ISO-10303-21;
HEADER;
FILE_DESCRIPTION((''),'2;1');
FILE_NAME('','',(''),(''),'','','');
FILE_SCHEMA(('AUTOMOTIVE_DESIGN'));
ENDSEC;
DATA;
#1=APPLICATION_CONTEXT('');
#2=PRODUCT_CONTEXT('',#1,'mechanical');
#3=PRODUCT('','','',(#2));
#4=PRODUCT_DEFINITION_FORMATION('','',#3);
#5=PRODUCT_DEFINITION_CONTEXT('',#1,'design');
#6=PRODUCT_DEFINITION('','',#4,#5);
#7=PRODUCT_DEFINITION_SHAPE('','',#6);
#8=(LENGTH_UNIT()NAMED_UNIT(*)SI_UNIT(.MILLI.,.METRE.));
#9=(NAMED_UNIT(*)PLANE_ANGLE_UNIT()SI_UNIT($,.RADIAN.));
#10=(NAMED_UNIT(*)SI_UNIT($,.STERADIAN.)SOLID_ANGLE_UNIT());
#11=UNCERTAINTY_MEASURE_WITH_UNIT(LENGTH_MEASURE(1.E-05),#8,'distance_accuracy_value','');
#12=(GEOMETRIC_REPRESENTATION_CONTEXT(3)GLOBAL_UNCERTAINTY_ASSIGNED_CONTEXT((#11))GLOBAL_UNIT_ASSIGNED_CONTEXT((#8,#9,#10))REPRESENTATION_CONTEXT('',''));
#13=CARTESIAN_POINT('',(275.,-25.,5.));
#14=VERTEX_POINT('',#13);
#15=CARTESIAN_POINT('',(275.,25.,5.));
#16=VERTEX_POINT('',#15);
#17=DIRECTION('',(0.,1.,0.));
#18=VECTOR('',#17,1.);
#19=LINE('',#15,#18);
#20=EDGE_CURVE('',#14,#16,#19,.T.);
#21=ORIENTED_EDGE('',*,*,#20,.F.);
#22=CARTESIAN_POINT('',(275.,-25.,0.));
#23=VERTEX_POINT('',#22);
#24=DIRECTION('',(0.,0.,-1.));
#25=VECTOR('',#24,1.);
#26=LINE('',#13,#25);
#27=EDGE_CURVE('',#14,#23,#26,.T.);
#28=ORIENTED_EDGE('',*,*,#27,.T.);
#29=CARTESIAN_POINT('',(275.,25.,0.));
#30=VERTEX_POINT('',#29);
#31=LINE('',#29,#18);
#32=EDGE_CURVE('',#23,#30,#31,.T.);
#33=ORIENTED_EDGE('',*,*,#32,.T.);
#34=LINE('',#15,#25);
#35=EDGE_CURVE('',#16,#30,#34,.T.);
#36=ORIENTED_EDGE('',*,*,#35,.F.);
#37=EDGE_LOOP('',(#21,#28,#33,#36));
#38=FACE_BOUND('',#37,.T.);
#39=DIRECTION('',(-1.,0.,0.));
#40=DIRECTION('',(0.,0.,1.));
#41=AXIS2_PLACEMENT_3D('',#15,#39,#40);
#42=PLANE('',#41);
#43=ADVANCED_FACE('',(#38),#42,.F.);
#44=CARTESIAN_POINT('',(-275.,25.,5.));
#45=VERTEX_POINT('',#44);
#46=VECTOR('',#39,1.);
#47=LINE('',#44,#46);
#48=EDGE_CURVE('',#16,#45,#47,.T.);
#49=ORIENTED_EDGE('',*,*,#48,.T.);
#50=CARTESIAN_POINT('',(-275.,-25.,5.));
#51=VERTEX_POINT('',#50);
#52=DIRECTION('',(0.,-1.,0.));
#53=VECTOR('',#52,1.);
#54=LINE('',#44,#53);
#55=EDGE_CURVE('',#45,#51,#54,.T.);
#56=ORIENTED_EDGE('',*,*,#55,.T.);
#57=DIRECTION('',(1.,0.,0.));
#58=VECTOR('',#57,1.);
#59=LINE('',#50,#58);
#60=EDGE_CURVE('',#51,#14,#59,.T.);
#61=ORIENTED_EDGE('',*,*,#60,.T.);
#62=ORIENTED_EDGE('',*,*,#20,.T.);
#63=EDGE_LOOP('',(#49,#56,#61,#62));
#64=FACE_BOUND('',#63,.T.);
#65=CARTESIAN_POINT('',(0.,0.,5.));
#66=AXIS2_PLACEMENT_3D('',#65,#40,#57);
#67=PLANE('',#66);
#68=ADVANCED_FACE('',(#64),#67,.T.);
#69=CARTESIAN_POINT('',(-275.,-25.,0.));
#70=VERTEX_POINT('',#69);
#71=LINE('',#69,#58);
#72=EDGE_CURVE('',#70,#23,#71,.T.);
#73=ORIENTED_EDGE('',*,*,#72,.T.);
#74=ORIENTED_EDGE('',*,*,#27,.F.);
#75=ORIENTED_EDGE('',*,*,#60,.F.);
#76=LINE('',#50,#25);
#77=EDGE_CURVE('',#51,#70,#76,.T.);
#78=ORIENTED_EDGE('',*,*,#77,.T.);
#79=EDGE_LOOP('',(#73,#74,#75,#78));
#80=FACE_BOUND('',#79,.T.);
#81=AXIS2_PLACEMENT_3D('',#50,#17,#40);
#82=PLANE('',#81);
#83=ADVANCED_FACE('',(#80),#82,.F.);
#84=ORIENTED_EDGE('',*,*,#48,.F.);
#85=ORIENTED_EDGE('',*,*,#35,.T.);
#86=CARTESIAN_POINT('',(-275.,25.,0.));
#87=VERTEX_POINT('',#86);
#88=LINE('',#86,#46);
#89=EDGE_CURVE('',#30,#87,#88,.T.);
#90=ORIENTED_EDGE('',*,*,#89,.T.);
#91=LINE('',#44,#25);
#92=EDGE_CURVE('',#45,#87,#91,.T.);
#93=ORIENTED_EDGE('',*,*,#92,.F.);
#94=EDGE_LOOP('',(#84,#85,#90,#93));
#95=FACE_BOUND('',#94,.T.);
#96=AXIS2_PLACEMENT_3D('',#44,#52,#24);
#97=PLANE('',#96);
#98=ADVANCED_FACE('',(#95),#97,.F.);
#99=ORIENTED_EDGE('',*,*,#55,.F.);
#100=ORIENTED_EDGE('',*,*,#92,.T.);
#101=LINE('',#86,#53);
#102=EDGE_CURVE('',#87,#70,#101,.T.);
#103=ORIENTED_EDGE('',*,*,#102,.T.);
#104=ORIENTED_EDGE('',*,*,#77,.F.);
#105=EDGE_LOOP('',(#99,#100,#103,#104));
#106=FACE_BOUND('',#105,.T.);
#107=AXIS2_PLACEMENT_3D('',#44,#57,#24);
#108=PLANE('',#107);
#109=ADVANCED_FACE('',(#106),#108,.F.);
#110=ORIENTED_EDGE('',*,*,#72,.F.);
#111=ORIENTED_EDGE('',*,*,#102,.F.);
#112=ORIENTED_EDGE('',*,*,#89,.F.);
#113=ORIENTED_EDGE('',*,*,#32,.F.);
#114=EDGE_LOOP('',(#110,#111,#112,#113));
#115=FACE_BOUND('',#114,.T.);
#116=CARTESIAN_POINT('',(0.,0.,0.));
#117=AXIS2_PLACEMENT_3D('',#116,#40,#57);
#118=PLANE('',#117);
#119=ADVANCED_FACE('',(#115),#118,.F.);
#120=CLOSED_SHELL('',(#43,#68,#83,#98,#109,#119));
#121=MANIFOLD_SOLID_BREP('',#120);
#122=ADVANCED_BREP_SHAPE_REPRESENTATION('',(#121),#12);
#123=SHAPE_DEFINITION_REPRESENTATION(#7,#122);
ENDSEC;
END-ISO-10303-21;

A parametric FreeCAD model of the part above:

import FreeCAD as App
import Part
import Sketcher
Q = App.Units.Quantity


def add_polygon(sketch, points):
    """Adds a closed chain of lines whose ends are joined by coincident constraints."""
    first, n = sketch.GeometryCount, len(points)
    for a, b in zip(points, points[1:] + points[:1]):
        sketch.addGeometry(Part.LineSegment(App.Vector(*a, 0), App.Vector(*b, 0)), False)
    for i in range(n):
        sketch.addConstraint(Sketcher.Constraint("Coincident", first + i, 2, first + (i + 1) % n, 1))

doc = App.newDocument("Part")
params = doc.addObject("Spreadsheet::Sheet", "Params")
for row, (alias, value) in enumerate([
    ("sketch1_width", "550 mm"),
    ("sketch1_height", "50 mm"),
    ("pad1_length", "5 mm"),
], start=1):
    params.set(f"A{row}", alias)
    params.set(f"B{row}", "=" + value)
    params.setAlias(f"B{row}", alias)

body = doc.addObject("PartDesign::Body", "Body")

# Sketch on XY plane
sketch1 = body.newObject("Sketcher::SketchObject", "Sketch")
sketch1.AttachmentSupport = (doc.getObject("XY_Plane"), [""])
sketch1.MapMode = "FlatFace"
add_polygon(sketch1, [(-275, 25), (-275, -25), (275, -25), (275, 25)])  # lines 0-3
sketch1.addConstraint(Sketcher.Constraint("Vertical", 0))
sketch1.addConstraint(Sketcher.Constraint("Horizontal", 1))
sketch1.addConstraint(Sketcher.Constraint("Vertical", 2))
sketch1.addConstraint(Sketcher.Constraint("Horizontal", 3))
sketch1.addConstraint(Sketcher.Constraint("Symmetric", 0, 2, 2, 2, -1, 1))
sketch1.addConstraint(Sketcher.Constraint("DistanceX", 1, 1, 1, 2, Q("550 mm")))
sketch1.addConstraint(Sketcher.Constraint("DistanceY", 0, 2, 0, 1, Q("50 mm")))
sketch1.setExpression("Constraints[9]", "Params.sketch1_width")
sketch1.setExpression("Constraints[10]", "Params.sketch1_height")
pad1 = body.newObject("PartDesign::Pad", "Pad")
pad1.Profile = sketch1
pad1.setExpression("Length", "Params.pad1_length")

doc.recompute()
